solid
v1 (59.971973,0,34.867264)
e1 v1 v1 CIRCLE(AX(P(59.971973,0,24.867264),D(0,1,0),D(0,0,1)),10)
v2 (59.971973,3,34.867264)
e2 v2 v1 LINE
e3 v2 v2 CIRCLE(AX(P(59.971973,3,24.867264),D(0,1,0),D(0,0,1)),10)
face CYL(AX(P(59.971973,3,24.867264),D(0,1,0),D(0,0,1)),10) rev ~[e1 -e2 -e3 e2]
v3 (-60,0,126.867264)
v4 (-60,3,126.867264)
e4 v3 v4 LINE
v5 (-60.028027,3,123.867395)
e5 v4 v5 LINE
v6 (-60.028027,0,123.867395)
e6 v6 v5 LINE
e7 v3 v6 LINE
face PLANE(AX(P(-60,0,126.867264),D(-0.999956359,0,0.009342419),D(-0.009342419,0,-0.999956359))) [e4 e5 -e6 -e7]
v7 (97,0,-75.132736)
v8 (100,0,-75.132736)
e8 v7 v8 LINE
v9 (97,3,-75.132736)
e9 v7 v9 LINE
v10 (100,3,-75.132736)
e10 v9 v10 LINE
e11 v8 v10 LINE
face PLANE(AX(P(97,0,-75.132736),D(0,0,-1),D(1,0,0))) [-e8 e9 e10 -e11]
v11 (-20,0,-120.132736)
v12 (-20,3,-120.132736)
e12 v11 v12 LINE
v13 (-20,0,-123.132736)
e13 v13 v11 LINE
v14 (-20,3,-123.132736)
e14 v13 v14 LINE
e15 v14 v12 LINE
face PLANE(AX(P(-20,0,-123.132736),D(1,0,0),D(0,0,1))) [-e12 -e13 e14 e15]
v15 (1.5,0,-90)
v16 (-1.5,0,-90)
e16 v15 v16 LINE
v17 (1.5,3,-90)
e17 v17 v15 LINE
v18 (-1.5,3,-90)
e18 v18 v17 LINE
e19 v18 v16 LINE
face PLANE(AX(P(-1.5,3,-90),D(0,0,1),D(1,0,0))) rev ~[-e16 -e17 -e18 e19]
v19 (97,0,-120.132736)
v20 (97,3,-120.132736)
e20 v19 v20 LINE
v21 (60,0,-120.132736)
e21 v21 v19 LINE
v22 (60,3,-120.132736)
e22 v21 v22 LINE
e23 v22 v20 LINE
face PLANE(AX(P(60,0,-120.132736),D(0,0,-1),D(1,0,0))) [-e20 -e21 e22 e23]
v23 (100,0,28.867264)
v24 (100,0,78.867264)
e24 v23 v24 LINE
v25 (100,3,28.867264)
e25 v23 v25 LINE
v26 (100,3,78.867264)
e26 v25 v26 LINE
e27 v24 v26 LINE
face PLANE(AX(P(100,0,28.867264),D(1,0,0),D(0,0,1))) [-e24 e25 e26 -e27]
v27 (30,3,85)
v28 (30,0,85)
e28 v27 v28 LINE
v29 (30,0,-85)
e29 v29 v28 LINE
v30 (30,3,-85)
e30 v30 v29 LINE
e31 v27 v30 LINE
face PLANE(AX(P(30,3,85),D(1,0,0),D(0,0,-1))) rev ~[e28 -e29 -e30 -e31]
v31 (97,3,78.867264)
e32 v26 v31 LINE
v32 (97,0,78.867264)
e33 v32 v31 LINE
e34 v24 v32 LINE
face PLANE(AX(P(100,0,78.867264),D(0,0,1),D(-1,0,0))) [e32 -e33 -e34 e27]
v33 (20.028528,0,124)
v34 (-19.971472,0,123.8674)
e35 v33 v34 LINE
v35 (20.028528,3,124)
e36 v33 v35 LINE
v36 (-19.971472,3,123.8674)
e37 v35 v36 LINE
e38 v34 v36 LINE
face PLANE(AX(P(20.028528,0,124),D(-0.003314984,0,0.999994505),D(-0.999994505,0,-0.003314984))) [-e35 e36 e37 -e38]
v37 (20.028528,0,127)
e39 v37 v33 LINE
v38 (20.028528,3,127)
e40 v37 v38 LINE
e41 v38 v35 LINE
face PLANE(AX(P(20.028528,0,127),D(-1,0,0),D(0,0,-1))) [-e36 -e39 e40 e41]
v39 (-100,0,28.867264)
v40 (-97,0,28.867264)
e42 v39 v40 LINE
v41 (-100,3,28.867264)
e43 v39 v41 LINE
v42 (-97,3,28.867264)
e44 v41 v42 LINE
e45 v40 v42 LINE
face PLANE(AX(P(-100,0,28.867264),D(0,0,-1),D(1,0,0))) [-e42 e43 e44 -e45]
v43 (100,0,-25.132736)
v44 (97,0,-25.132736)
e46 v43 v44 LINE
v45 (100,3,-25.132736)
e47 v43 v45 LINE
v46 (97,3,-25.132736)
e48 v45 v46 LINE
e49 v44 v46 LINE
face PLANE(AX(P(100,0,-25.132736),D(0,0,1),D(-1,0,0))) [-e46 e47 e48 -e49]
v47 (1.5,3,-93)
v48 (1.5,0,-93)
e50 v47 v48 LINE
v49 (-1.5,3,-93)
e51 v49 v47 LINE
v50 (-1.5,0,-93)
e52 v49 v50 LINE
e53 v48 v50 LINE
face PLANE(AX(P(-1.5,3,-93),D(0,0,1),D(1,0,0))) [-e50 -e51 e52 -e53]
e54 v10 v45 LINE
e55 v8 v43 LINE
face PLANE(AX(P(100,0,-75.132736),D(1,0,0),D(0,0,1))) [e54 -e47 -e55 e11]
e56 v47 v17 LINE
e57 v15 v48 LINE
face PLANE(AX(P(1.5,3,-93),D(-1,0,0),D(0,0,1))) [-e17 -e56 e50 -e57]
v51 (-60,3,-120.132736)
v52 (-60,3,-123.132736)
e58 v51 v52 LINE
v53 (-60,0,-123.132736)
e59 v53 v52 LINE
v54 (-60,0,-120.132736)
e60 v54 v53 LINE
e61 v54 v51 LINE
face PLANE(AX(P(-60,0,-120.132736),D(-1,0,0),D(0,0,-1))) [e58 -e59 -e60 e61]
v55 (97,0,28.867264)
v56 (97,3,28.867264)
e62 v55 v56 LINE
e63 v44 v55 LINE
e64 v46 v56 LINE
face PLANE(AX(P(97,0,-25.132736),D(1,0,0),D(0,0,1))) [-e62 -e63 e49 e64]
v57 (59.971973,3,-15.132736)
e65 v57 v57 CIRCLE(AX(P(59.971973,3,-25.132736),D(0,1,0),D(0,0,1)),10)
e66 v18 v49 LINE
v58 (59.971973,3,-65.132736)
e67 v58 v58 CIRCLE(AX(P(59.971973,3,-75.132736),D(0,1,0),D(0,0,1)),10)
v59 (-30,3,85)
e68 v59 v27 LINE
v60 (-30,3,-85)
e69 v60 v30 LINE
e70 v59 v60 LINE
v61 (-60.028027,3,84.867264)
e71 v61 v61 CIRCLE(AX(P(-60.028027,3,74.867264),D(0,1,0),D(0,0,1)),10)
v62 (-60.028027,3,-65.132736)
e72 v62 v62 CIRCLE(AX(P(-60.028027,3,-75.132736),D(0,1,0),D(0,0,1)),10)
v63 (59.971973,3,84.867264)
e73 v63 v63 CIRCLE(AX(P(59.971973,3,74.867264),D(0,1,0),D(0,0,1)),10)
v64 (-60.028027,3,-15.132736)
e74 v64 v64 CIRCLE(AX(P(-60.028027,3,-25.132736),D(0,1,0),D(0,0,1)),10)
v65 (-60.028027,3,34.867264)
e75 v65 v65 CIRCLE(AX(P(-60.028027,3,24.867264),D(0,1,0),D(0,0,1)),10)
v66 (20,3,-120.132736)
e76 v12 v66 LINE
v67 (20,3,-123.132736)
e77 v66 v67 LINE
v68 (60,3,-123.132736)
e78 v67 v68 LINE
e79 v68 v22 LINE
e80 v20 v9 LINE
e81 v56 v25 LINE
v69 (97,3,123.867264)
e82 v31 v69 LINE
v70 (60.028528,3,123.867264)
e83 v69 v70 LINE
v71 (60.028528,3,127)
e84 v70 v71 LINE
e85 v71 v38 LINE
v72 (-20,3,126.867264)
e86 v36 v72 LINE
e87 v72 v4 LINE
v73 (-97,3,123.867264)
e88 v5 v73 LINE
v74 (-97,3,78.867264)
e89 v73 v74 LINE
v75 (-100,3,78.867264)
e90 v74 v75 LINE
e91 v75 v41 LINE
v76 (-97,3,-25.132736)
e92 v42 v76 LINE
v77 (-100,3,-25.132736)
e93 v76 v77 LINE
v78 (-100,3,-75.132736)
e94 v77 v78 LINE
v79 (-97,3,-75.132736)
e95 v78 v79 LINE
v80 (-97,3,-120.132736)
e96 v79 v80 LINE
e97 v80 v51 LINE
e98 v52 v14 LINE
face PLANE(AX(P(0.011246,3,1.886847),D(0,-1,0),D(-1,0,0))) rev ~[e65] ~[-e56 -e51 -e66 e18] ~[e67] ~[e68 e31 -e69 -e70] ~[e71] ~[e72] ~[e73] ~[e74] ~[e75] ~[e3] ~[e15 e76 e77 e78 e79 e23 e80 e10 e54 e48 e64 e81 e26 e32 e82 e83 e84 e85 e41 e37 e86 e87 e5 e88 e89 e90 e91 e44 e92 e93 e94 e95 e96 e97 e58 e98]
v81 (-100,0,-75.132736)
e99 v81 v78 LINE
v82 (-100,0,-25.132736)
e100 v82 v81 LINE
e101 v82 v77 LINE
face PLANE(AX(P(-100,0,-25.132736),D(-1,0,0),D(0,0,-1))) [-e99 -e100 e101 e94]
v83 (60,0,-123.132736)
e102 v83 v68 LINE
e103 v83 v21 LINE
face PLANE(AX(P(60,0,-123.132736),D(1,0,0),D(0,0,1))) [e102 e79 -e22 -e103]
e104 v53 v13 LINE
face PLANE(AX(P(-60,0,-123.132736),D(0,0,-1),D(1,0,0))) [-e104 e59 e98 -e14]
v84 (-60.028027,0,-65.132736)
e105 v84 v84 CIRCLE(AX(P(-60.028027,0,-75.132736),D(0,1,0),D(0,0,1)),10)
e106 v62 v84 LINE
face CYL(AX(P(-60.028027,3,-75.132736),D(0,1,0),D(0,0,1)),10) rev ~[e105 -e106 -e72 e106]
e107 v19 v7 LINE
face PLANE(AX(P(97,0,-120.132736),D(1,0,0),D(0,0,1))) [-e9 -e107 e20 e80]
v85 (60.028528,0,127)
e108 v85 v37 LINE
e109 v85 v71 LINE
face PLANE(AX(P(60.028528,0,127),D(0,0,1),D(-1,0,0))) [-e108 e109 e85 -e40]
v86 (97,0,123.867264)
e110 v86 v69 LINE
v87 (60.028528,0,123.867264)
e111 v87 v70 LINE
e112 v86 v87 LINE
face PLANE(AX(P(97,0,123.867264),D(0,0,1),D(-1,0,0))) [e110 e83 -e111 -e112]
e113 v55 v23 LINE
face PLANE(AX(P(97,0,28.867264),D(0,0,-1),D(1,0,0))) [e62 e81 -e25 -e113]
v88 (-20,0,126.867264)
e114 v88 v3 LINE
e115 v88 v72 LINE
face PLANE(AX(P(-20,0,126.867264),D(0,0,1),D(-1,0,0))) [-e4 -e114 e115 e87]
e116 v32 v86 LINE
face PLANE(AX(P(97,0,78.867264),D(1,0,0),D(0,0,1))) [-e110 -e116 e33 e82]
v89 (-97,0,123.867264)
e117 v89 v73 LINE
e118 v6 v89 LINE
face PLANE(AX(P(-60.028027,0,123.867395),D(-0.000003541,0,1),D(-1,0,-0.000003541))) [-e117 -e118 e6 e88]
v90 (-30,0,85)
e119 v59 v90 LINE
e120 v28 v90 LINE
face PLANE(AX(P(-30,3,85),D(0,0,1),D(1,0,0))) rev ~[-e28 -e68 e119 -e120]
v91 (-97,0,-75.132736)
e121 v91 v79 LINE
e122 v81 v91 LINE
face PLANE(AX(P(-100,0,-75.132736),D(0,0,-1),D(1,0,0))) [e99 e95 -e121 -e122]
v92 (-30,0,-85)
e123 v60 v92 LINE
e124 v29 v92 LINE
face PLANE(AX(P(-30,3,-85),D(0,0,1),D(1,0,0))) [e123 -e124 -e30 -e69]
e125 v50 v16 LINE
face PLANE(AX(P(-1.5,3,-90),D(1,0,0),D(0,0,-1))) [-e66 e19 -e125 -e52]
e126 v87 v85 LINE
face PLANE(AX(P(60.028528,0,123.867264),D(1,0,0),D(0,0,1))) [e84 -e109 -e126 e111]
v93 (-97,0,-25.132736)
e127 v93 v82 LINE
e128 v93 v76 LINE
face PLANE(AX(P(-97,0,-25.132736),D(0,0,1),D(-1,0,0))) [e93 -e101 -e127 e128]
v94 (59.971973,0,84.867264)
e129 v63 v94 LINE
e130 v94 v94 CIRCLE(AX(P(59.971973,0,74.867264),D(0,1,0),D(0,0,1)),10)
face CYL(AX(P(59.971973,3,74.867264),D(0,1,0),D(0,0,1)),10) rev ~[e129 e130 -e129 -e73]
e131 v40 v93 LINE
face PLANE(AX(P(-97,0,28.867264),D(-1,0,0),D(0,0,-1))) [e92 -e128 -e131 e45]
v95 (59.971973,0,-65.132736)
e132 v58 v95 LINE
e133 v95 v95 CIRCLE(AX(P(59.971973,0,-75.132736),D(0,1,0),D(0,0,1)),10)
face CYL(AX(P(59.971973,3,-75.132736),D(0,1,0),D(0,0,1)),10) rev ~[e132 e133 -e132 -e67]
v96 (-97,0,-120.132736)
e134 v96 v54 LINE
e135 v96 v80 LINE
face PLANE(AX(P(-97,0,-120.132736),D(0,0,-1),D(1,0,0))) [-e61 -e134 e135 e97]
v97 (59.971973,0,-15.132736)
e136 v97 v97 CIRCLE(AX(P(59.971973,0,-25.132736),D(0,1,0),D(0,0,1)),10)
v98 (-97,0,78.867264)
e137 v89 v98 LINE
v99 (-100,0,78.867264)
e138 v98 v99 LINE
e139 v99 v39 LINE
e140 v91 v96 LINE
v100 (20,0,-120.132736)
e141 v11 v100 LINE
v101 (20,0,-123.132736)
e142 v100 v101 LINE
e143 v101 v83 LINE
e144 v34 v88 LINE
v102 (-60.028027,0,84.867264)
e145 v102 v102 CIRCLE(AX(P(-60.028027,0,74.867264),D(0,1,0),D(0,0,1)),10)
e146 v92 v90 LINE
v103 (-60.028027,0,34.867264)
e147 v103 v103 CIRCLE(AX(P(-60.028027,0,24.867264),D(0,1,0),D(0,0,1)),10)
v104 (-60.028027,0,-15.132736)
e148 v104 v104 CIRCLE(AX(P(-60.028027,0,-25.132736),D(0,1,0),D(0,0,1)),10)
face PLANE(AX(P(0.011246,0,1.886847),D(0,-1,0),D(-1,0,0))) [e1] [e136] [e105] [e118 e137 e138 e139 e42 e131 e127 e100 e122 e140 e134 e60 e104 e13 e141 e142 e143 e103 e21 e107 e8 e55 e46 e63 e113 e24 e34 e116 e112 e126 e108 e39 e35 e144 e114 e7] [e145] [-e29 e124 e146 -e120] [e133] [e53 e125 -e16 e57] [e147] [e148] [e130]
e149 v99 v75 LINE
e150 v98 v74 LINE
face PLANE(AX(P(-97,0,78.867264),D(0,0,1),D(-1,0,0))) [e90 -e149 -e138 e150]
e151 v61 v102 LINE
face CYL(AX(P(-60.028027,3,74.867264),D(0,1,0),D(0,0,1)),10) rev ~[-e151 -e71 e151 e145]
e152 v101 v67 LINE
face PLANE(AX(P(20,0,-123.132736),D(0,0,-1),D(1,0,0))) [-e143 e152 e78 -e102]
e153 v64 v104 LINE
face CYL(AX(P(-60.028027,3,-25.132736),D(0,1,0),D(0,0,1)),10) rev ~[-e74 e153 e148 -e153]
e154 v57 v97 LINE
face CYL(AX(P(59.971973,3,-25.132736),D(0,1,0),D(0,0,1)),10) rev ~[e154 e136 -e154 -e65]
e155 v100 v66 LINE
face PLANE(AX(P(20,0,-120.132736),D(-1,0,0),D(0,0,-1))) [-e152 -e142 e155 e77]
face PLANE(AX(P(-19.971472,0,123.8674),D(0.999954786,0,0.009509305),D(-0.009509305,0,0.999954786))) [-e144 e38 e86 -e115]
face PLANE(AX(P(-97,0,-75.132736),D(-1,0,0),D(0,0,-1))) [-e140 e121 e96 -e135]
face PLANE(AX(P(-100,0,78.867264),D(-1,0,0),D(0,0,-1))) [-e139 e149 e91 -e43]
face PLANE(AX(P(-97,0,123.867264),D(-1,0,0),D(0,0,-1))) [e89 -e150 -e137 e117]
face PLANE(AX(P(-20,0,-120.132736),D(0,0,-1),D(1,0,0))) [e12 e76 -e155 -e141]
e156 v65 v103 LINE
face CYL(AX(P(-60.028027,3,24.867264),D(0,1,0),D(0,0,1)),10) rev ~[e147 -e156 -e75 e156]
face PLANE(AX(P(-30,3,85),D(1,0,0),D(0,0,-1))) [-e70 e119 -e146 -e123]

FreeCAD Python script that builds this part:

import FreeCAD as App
import Part
import Sketcher
Q = App.Units.Quantity

doc = App.newDocument("Part")
body = doc.addObject("PartDesign::Body", "Body")

# Sketch on XZ plane
sketch1 = doc.addObject("Sketcher::SketchObject", "Sketch")
body.addObject(sketch1)
sketch1.AttachmentSupport = (doc.XZ_Plane, [""])
sketch1.MapMode = "FlatFace"
sketch1.addGeometry([
    Part.LineSegment(App.Vector(60, -123.132736, 0), App.Vector(20, -123.132736, 0)),  # 0
    Part.LineSegment(App.Vector(20, -123.132736, 0), App.Vector(20, -120.132736, 0)),  # 1
    Part.LineSegment(App.Vector(20, -120.132736, 0), App.Vector(-20, -120.132736, 0)),  # 2
    Part.LineSegment(App.Vector(-20, -120.132736, 0), App.Vector(-20, -123.132736, 0)),  # 3
    Part.LineSegment(App.Vector(-20, -123.132736, 0), App.Vector(-60, -123.132736, 0)),  # 4
    Part.LineSegment(App.Vector(-60, -123.132736, 0), App.Vector(-60, -120.132736, 0)),  # 5
    Part.LineSegment(App.Vector(-60, -120.132736, 0), App.Vector(-97, -120.132736, 0)),  # 6
    Part.LineSegment(App.Vector(-97, -120.132736, 0), App.Vector(-97, -75.132736, 0)),  # 7
    Part.LineSegment(App.Vector(-97, -75.132736, 0), App.Vector(-100, -75.132736, 0)),  # 8
    Part.LineSegment(App.Vector(-100, -75.132736, 0), App.Vector(-100, -25.132736, 0)),  # 9
    Part.LineSegment(App.Vector(-100, -25.132736, 0), App.Vector(-97, -25.132736, 0)),  # 10
    Part.LineSegment(App.Vector(-97, -25.132736, 0), App.Vector(-97, 28.867264, 0)),  # 11
    Part.LineSegment(App.Vector(-97, 28.867264, 0), App.Vector(-100, 28.867264, 0)),  # 12
    Part.LineSegment(App.Vector(-100, 28.867264, 0), App.Vector(-100, 78.867264, 0)),  # 13
    Part.LineSegment(App.Vector(-100, 78.867264, 0), App.Vector(-97, 78.867264, 0)),  # 14
    Part.LineSegment(App.Vector(-97, 78.867264, 0), App.Vector(-97, 123.867264, 0)),  # 15
    Part.LineSegment(App.Vector(-97, 123.867264, 0), App.Vector(-60.028027, 123.867395, 0)),  # 16
    Part.LineSegment(App.Vector(-60.028027, 123.867395, 0), App.Vector(-60, 126.867264, 0)),  # 17
    Part.LineSegment(App.Vector(-60, 126.867264, 0), App.Vector(-20, 126.867264, 0)),  # 18
    Part.LineSegment(App.Vector(-20, 126.867264, 0), App.Vector(-19.971472, 123.8674, 0)),  # 19
    Part.LineSegment(App.Vector(-19.971472, 123.8674, 0), App.Vector(20.028528, 124, 0)),  # 20
    Part.LineSegment(App.Vector(20.028528, 124, 0), App.Vector(20.028528, 127, 0)),  # 21
    Part.LineSegment(App.Vector(20.028528, 127, 0), App.Vector(60.028528, 127, 0)),  # 22
    Part.LineSegment(App.Vector(60.028528, 127, 0), App.Vector(60.028528, 123.867264, 0)),  # 23
    Part.LineSegment(App.Vector(60.028528, 123.867264, 0), App.Vector(97, 123.867264, 0)),  # 24
    Part.LineSegment(App.Vector(97, 123.867264, 0), App.Vector(97, 78.867264, 0)),  # 25
    Part.LineSegment(App.Vector(97, 78.867264, 0), App.Vector(100, 78.867264, 0)),  # 26
    Part.LineSegment(App.Vector(100, 78.867264, 0), App.Vector(100, 28.867264, 0)),  # 27
    Part.LineSegment(App.Vector(100, 28.867264, 0), App.Vector(97, 28.867264, 0)),  # 28
    Part.LineSegment(App.Vector(97, 28.867264, 0), App.Vector(97, -25.132736, 0)),  # 29
    Part.LineSegment(App.Vector(97, -25.132736, 0), App.Vector(100, -25.132736, 0)),  # 30
    Part.LineSegment(App.Vector(100, -25.132736, 0), App.Vector(100, -75.132736, 0)),  # 31
    Part.LineSegment(App.Vector(100, -75.132736, 0), App.Vector(97, -75.132736, 0)),  # 32
    Part.LineSegment(App.Vector(97, -75.132736, 0), App.Vector(97, -120.132736, 0)),  # 33
    Part.LineSegment(App.Vector(97, -120.132736, 0), App.Vector(60, -120.132736, 0)),  # 34
    Part.LineSegment(App.Vector(60, -120.132736, 0), App.Vector(60, -123.132736, 0)),  # 35
], False)
sketch1.addConstraint([
    Sketcher.Constraint("Coincident", 0, 2, 1, 1),
    Sketcher.Constraint("Coincident", 1, 2, 2, 1),
    Sketcher.Constraint("Coincident", 2, 2, 3, 1),
    Sketcher.Constraint("Coincident", 3, 2, 4, 1),
    Sketcher.Constraint("Coincident", 4, 2, 5, 1),
    Sketcher.Constraint("Coincident", 5, 2, 6, 1),
    Sketcher.Constraint("Coincident", 6, 2, 7, 1),
    Sketcher.Constraint("Coincident", 7, 2, 8, 1),
    Sketcher.Constraint("Coincident", 8, 2, 9, 1),
    Sketcher.Constraint("Coincident", 9, 2, 10, 1),
    Sketcher.Constraint("Coincident", 10, 2, 11, 1),
    Sketcher.Constraint("Coincident", 11, 2, 12, 1),
    Sketcher.Constraint("Coincident", 12, 2, 13, 1),
    Sketcher.Constraint("Coincident", 13, 2, 14, 1),
    Sketcher.Constraint("Coincident", 14, 2, 15, 1),
    Sketcher.Constraint("Coincident", 15, 2, 16, 1),
    Sketcher.Constraint("Coincident", 16, 2, 17, 1),
    Sketcher.Constraint("Coincident", 17, 2, 18, 1),
    Sketcher.Constraint("Coincident", 18, 2, 19, 1),
    Sketcher.Constraint("Coincident", 19, 2, 20, 1),
    Sketcher.Constraint("Coincident", 20, 2, 21, 1),
    Sketcher.Constraint("Coincident", 21, 2, 22, 1),
    Sketcher.Constraint("Coincident", 22, 2, 23, 1),
    Sketcher.Constraint("Coincident", 23, 2, 24, 1),
    Sketcher.Constraint("Coincident", 24, 2, 25, 1),
    Sketcher.Constraint("Coincident", 25, 2, 26, 1),
    Sketcher.Constraint("Coincident", 26, 2, 27, 1),
    Sketcher.Constraint("Coincident", 27, 2, 28, 1),
    Sketcher.Constraint("Coincident", 28, 2, 29, 1),
    Sketcher.Constraint("Coincident", 29, 2, 30, 1),
    Sketcher.Constraint("Coincident", 30, 2, 31, 1),
    Sketcher.Constraint("Coincident", 31, 2, 32, 1),
    Sketcher.Constraint("Coincident", 32, 2, 33, 1),
    Sketcher.Constraint("Coincident", 33, 2, 34, 1),
    Sketcher.Constraint("Coincident", 34, 2, 35, 1),
    Sketcher.Constraint("Coincident", 35, 2, 0, 1),
    Sketcher.Constraint("Horizontal", 0),
    Sketcher.Constraint("Vertical", 1),
    Sketcher.Constraint("Horizontal", 2),
    Sketcher.Constraint("Vertical", 3),
    Sketcher.Constraint("Horizontal", 4),
    Sketcher.Constraint("Vertical", 5),
    Sketcher.Constraint("Horizontal", 6),
    Sketcher.Constraint("Vertical", 7),
    Sketcher.Constraint("Horizontal", 8),
    Sketcher.Constraint("Vertical", 9),
    Sketcher.Constraint("Horizontal", 10),
    Sketcher.Constraint("Vertical", 11),
    Sketcher.Constraint("Horizontal", 12),
    Sketcher.Constraint("Vertical", 13),
    Sketcher.Constraint("Horizontal", 14),
    Sketcher.Constraint("Vertical", 15),
    Sketcher.Constraint("Horizontal", 18),
    Sketcher.Constraint("Vertical", 21),
    Sketcher.Constraint("Horizontal", 22),
    Sketcher.Constraint("Vertical", 23),
    Sketcher.Constraint("Horizontal", 24),
    Sketcher.Constraint("Vertical", 25),
    Sketcher.Constraint("Horizontal", 26),
    Sketcher.Constraint("Vertical", 27),
    Sketcher.Constraint("Horizontal", 28),
    Sketcher.Constraint("Vertical", 29),
    Sketcher.Constraint("Horizontal", 30),
    Sketcher.Constraint("Vertical", 31),
    Sketcher.Constraint("Horizontal", 32),
    Sketcher.Constraint("Vertical", 33),
    Sketcher.Constraint("Horizontal", 34),
    Sketcher.Constraint("Vertical", 35),
    Sketcher.Constraint("Symmetric", 0, 2, 3, 2, -2),
    Sketcher.Constraint("Symmetric", 15, 2, 24, 2, -2),
    Sketcher.Constraint("Symmetric", 13, 2, 26, 2, -2),
    Sketcher.Constraint("Symmetric", 11, 2, 28, 2, -2),
    Sketcher.Constraint("Symmetric", 9, 2, 30, 2, -2),
    Sketcher.Constraint("Symmetric", 7, 2, 32, 2, -2),
    Sketcher.Constraint("Symmetric", 5, 2, 34, 2, -2),
    Sketcher.Constraint("Horizontal", 2, 2, 5, 2),
    Sketcher.Constraint("Vertical", 7, 2, 10, 2),
    Sketcher.Constraint("Vertical", 9, 2, 12, 2),
    Sketcher.Constraint("Vertical", 11, 2, 14, 2),
    Sketcher.Constraint("Vertical", 5, 2, 17, 2),
    Sketcher.Constraint("Vertical", 3, 2, 18, 2),
    Sketcher.Constraint("Equal", 0, 2),
    Sketcher.Constraint("Equal", 18, 22),
    Sketcher.Constraint("Equal", 32, 1),
    Sketcher.Constraint("Equal", 9, 13),
    Sketcher.Constraint("Equal", 7, 15),
    Sketcher.Constraint("Equal", 5, 21),
    Sketcher.Constraint("Equal", 17, 19),
    Sketcher.Constraint("DistanceX", 0, 2, 0, 1, Q("40 mm")),
    Sketcher.Constraint("DistanceX", 6, 2, 6, 1, Q("37 mm")),
    Sketcher.Constraint("DistanceX", 8, 2, 8, 1, Q("3 mm")),
    Sketcher.Constraint("DistanceY", 7, 1, 7, 2, Q("45 mm")),
    Sketcher.Constraint("DistanceY", 9, 1, 9, 2, Q("50 mm")),
    Sketcher.Constraint("DistanceY", 11, 1, 11, 2, Q("54 mm")),
    Sketcher.Constraint("Distance", 17, Q("3 mm")),
    Sketcher.Constraint("DistanceY", -1, 1, 20, 2, Q("124 mm")),
    Sketcher.Constraint("DistanceY", 15, 2, 17, 2, Q("3 mm")),
    Sketcher.Constraint("DistanceX", 19, 2, 20, 2, Q("40 mm")),
    Sketcher.Constraint("DistanceY", -1, 1, 19, 2, Q("123.8674 mm")),
    Sketcher.Constraint("DistanceX", 24, 1, 24, 2, Q("36.971472 mm")),
    Sketcher.Constraint("DistanceY", 15, 2, 16, 2, Q("0.000131 mm")),
])
pad1 = doc.addObject("PartDesign::Pad", "Pad")
body.addObject(pad1)
pad1.Profile = sketch1
pad1.Length = 3
pad1.Reversed = True

# Sketch on XZ plane
sketch2 = doc.addObject("Sketcher::SketchObject", "Sketch001")
body.addObject(sketch2)
sketch2.AttachmentSupport = (doc.XZ_Plane, [""])
sketch2.MapMode = "FlatFace"
sketch2.AttachmentOffset = App.Placement(App.Vector(0, 0, -3), App.Rotation())
sketch2.addGeometry([
    Part.Circle(App.Vector(-60, -75.1, 0), App.Vector(0, 0, 1), 10),  # 0
    Part.Circle(App.Vector(60, -75.1, 0), App.Vector(0, 0, 1), 10),  # 1
    Part.Circle(App.Vector(-60, -25.1, 0), App.Vector(0, 0, 1), 10),  # 2
    Part.Circle(App.Vector(60, -25.1, 0), App.Vector(0, 0, 1), 10),  # 3
    Part.Circle(App.Vector(-60, 24.9, 0), App.Vector(0, 0, 1), 10),  # 4
    Part.Circle(App.Vector(60, 24.9, 0), App.Vector(0, 0, 1), 10),  # 5
    Part.Circle(App.Vector(-60, 74.9, 0), App.Vector(0, 0, 1), 10),  # 6
    Part.Circle(App.Vector(60, 74.9, 0), App.Vector(0, 0, 1), 10),  # 7
    Part.LineSegment(App.Vector(-30, -85, 0), App.Vector(-30, 85, 0)),  # 8
    Part.LineSegment(App.Vector(-30, 85, 0), App.Vector(30, 85, 0)),  # 9
    Part.LineSegment(App.Vector(30, 85, 0), App.Vector(30, -85, 0)),  # 10
    Part.LineSegment(App.Vector(30, -85, 0), App.Vector(-30, -85, 0)),  # 11
    Part.LineSegment(App.Vector(-1.5, -90, 0), App.Vector(1.5, -90, 0)),  # 12
    Part.LineSegment(App.Vector(1.5, -90, 0), App.Vector(1.5, -93, 0)),  # 13
    Part.LineSegment(App.Vector(1.5, -93, 0), App.Vector(-1.5, -93, 0)),  # 14
    Part.LineSegment(App.Vector(-1.5, -93, 0), App.Vector(-1.5, -90, 0)),  # 15
], False)
sketch2.addConstraint([
    Sketcher.Constraint("Coincident", 8, 2, 9, 1),
    Sketcher.Constraint("Coincident", 9, 2, 10, 1),
    Sketcher.Constraint("Coincident", 10, 2, 11, 1),
    Sketcher.Constraint("Coincident", 11, 2, 8, 1),
    Sketcher.Constraint("Coincident", 12, 2, 13, 1),
    Sketcher.Constraint("Coincident", 13, 2, 14, 1),
    Sketcher.Constraint("Coincident", 14, 2, 15, 1),
    Sketcher.Constraint("Coincident", 15, 2, 12, 1),
    Sketcher.Constraint("Vertical", 8),
    Sketcher.Constraint("Horizontal", 9),
    Sketcher.Constraint("Vertical", 10),
    Sketcher.Constraint("Horizontal", 11),
    Sketcher.Constraint("Horizontal", 12),
    Sketcher.Constraint("Vertical", 13),
    Sketcher.Constraint("Horizontal", 14),
    Sketcher.Constraint("Vertical", 15),
    Sketcher.Constraint("Equal", 0, 1),
    Sketcher.Constraint("Equal", 1, 2),
    Sketcher.Constraint("Equal", 2, 3),
    Sketcher.Constraint("Equal", 3, 4),
    Sketcher.Constraint("Equal", 4, 5),
    Sketcher.Constraint("Equal", 5, 6),
    Sketcher.Constraint("Equal", 6, 7),
    Sketcher.Constraint("Symmetric", 8, 2, 10, 2, -1, 1),
    Sketcher.Constraint("Horizontal", 0, 3, 1, 3),
    Sketcher.Constraint("Horizontal", 2, 3, 3, 3),
    Sketcher.Constraint("Horizontal", 4, 3, 5, 3),
    Sketcher.Constraint("Horizontal", 6, 3, 7, 3),
    Sketcher.Constraint("Vertical", 0, 3, 2, 3),
    Sketcher.Constraint("Vertical", 1, 3, 3, 3),
    Sketcher.Constraint("Vertical", 2, 3, 4, 3),
    Sketcher.Constraint("Vertical", 3, 3, 5, 3),
    Sketcher.Constraint("Vertical", 4, 3, 6, 3),
    Sketcher.Constraint("Vertical", 5, 3, 7, 3),
    Sketcher.Constraint("Equal", 14, 13),
    Sketcher.Constraint("Diameter", 0, Q("20 mm")),
    Sketcher.Constraint("DistanceX", 9, 1, 9, 2, Q("60 mm")),
    Sketcher.Constraint("DistanceX", 12, 1, 12, 2, Q("3 mm")),
    Sketcher.Constraint("DistanceY", 8, 1, 8, 2, Q("170 mm")),
    Sketcher.Constraint("DistanceY", 12, 2, -1, 1, Q("90 mm")),
    Sketcher.Constraint("DistanceX", 0, 3, 1, 3, Q("120 mm")),
    Sketcher.Constraint("DistanceY", 0, 3, 2, 3, Q("50 mm")),
    Sketcher.Constraint("DistanceY", 2, 3, 4, 3, Q("50 mm")),
    Sketcher.Constraint("DistanceY", 4, 3, 6, 3, Q("50 mm")),
    Sketcher.Constraint("DistanceX", -1, 1, 12, 2, Q("1.5 mm")),
    Sketcher.Constraint("DistanceX", 0, 3, -1, 1, Q("60.028027 mm")),
    Sketcher.Constraint("DistanceY", 0, 3, -1, 1, Q("75.132736 mm")),
])
pocket1 = doc.addObject("PartDesign::Pocket", "Pocket")
body.addObject(pocket1)
pocket1.Profile = sketch2
pocket1.Type = "ThroughAll"
pocket1.Reversed = True

doc.recompute()
